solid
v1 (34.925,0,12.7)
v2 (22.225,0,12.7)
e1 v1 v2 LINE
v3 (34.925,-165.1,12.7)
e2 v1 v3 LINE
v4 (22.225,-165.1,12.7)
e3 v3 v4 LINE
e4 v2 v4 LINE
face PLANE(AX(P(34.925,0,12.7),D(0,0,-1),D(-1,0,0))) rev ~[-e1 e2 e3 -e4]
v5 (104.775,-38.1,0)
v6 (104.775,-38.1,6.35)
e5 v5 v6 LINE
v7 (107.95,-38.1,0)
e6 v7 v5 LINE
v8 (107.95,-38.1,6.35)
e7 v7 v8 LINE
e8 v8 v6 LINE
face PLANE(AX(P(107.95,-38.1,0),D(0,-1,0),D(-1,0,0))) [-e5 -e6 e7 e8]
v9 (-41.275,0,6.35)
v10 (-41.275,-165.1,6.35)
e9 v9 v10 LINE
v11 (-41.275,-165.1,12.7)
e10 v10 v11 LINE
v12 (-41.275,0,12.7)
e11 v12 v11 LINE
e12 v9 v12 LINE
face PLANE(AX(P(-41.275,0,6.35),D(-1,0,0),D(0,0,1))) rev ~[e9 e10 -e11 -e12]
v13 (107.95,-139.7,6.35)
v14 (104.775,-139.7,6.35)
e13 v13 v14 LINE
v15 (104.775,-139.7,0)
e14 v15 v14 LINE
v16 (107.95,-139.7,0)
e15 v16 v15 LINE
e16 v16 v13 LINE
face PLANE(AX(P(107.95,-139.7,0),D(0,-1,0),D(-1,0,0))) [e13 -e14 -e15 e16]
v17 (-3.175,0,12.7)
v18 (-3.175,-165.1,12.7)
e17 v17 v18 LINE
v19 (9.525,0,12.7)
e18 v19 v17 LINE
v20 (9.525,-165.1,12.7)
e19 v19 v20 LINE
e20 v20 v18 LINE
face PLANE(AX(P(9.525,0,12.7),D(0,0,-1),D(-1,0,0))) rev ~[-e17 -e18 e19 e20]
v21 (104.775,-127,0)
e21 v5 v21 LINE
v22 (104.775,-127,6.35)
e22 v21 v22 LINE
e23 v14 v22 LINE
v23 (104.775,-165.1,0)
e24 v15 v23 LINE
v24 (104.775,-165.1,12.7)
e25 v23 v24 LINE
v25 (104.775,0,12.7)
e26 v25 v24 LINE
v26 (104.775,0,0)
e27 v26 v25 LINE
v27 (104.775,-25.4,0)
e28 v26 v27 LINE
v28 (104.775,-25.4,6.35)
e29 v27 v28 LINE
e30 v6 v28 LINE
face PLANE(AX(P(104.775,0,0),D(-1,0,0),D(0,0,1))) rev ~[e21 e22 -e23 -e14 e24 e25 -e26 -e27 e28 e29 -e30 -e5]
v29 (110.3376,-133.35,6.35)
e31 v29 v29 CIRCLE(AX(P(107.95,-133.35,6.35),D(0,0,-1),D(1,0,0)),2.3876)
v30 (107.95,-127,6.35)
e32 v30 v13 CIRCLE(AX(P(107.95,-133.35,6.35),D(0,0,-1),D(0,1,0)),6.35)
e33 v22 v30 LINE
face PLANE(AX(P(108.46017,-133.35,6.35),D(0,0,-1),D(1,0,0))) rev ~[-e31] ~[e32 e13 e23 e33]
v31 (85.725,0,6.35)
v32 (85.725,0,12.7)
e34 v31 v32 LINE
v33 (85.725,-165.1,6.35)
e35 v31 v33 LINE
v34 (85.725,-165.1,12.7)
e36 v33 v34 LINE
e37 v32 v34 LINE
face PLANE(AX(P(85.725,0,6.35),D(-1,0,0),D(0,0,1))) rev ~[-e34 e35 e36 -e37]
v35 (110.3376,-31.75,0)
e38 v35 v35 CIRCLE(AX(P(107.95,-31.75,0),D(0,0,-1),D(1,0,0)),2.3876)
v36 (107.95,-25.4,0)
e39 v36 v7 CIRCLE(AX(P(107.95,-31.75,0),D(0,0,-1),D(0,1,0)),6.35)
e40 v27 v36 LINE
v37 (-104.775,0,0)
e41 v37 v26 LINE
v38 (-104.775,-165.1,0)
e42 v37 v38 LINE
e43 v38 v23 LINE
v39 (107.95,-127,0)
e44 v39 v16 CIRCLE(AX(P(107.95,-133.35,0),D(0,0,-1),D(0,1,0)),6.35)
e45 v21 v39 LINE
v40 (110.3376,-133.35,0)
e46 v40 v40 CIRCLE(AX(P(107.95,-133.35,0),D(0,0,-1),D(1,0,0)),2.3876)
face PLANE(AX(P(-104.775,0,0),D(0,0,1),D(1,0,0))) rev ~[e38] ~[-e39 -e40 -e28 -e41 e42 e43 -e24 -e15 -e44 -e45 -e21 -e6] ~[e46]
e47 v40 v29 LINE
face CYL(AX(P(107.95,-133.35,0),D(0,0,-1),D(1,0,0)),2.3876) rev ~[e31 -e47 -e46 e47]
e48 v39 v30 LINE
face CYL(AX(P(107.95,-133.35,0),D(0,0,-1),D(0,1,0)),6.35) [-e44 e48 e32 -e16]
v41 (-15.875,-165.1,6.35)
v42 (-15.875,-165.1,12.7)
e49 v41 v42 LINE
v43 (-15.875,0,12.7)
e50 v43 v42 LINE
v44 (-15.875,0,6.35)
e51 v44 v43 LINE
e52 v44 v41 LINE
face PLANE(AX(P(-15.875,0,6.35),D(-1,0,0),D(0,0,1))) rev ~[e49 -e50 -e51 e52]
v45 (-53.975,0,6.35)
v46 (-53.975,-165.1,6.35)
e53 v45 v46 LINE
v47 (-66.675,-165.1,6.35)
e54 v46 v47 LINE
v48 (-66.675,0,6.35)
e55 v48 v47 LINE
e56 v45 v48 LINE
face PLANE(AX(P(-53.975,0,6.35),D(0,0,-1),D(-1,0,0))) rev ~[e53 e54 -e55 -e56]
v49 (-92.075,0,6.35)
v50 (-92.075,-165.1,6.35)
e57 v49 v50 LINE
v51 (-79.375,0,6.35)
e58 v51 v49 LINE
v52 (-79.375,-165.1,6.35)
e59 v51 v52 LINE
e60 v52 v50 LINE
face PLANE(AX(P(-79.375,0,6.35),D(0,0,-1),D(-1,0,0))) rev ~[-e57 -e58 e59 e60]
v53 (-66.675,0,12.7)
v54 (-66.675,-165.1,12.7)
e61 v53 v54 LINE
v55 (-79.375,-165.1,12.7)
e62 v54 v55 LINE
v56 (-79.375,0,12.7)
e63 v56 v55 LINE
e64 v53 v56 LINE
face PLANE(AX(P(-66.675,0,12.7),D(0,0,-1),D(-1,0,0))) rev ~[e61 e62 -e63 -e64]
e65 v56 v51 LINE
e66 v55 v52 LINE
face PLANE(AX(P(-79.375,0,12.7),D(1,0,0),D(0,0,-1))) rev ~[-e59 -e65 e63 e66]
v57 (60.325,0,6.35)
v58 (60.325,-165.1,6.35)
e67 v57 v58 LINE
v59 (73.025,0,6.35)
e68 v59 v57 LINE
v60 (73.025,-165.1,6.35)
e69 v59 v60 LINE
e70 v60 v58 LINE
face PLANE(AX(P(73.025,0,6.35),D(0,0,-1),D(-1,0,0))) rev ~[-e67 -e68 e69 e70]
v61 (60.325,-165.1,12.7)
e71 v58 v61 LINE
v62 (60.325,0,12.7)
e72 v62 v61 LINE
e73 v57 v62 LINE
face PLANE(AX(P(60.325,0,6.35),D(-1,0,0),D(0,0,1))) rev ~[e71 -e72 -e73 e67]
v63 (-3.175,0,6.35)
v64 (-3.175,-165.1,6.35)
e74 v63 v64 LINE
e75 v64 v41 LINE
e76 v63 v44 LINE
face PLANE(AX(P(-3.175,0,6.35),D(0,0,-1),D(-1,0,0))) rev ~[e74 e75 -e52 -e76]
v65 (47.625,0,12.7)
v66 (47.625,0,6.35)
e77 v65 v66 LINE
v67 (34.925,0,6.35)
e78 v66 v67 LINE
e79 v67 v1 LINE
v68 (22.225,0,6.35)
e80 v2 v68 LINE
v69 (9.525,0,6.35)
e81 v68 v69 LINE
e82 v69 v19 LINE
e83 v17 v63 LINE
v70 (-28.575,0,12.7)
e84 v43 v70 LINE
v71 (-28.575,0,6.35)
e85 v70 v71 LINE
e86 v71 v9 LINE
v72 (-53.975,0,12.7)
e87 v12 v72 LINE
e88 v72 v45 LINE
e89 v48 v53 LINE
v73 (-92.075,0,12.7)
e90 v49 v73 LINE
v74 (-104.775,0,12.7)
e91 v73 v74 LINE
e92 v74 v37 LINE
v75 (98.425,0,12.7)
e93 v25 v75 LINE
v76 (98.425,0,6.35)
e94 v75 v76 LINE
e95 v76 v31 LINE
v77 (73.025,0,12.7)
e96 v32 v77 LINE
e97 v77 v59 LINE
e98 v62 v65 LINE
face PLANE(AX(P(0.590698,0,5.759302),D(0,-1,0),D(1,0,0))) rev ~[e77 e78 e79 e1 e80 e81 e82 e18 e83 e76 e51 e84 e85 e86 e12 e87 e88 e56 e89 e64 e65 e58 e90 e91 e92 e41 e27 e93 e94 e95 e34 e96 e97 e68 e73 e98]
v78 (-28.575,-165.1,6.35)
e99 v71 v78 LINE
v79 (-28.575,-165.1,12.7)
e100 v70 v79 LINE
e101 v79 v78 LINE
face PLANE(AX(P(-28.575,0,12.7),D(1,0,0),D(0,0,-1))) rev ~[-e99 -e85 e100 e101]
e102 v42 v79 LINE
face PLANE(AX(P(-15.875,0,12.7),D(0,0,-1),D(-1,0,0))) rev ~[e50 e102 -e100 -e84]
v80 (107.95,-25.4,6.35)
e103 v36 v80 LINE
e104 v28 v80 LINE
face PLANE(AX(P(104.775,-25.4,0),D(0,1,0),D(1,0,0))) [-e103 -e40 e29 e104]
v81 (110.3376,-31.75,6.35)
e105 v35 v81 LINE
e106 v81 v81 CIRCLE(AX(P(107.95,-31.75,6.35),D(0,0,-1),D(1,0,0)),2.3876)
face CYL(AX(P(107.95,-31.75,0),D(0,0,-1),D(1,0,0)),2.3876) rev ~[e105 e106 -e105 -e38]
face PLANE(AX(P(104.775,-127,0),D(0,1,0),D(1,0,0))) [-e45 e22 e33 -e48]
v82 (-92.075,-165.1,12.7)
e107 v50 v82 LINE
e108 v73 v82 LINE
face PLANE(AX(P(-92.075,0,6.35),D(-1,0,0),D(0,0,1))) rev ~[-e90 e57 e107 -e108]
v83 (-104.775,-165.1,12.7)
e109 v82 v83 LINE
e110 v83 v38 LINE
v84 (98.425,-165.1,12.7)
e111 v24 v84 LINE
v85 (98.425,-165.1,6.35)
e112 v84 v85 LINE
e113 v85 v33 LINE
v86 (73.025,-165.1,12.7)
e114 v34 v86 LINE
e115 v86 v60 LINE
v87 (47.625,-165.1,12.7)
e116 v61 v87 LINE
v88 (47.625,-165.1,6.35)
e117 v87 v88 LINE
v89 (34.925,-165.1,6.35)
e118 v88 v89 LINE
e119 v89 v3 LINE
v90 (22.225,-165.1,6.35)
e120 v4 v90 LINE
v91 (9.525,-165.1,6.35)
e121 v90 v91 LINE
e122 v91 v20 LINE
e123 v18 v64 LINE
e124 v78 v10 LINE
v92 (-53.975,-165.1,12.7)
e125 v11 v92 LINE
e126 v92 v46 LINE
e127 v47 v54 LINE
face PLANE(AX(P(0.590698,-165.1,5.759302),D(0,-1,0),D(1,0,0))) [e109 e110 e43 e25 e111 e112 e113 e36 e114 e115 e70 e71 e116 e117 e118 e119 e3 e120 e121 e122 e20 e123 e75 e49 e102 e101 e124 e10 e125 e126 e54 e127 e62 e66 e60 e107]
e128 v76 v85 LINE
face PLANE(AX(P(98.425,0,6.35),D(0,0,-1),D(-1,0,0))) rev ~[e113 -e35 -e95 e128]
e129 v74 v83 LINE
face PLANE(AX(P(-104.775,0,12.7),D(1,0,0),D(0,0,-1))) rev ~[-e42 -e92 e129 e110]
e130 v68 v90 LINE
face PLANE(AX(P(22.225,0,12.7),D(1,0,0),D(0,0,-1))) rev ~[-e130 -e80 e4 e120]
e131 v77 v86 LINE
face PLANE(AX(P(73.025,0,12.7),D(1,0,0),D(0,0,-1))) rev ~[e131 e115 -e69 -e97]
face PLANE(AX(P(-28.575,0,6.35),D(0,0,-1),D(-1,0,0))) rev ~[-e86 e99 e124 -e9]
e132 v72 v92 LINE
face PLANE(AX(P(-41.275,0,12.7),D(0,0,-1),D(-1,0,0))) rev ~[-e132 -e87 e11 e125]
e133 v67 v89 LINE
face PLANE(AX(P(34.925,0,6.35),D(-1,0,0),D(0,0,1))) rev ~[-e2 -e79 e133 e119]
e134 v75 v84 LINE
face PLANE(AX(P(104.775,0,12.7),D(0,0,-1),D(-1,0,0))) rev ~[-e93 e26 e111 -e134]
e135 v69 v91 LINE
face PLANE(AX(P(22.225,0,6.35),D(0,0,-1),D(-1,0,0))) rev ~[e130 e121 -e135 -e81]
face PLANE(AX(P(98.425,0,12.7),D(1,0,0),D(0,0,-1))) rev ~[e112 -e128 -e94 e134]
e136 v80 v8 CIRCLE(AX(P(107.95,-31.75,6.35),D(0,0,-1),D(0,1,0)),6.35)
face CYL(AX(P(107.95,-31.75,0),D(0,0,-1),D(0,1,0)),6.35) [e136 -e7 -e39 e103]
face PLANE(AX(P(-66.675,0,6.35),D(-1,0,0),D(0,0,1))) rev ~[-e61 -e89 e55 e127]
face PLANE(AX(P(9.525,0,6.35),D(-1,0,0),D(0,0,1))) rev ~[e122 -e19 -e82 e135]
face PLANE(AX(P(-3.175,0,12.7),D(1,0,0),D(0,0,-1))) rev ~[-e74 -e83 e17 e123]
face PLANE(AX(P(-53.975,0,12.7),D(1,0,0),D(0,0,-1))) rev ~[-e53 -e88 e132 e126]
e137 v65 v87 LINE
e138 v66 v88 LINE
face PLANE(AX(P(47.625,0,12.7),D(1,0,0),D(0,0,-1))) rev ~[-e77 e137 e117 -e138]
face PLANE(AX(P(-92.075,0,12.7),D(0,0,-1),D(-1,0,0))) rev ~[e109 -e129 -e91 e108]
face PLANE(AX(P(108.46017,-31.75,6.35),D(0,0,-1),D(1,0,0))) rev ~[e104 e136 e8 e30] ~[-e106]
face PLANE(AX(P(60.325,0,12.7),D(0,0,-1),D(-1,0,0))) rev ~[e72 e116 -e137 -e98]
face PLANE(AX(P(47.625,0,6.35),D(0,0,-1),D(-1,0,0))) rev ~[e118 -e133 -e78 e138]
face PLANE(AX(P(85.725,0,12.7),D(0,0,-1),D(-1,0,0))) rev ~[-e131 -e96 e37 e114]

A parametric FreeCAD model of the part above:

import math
import FreeCAD as App
import Part
import Sketcher

V = App.Vector
Q = App.Units.Quantity


def add_polygon(sketch, points):
    """Adds a closed chain of lines whose ends are joined by coincident constraints."""
    first, n = sketch.GeometryCount, len(points)
    for a, b in zip(points, points[1:] + points[:1]):
        sketch.addGeometry(Part.LineSegment(App.Vector(*a, 0), App.Vector(*b, 0)), False)
    for i in range(n):
        sketch.addConstraint(Sketcher.Constraint("Coincident", first + i, 2, first + (i + 1) % n, 1))

doc = App.newDocument("Part")
body = doc.addObject("PartDesign::Body", "Body")

sketch1 = body.newObject("Sketcher::SketchObject", "Sketch")
sketch1.AttachmentSupport = (doc.getObject("XZ_Plane"), [""])
sketch1.MapMode = "FlatFace"
add_polygon(sketch1, [(-105, 13), (-105, 0), (105, 0), (105, 13), (98, 13), (98, 6), (86, 6), (86, 13), (73, 13), (73, 6), (60, 6), (60, 13), (48, 13), (48, 6), (35, 6), (35, 13), (22, 13), (22, 6), (10, 6), (10, 13), (-3, 13), (-3, 6), (-16, 6), (-16, 13), (-29, 13), (-29, 6), (-41, 6), (-41, 13), (-54, 13), (-54, 6), (-67, 6), (-67, 13), (-79, 13), (-79, 6), (-92, 6), (-92, 13)])
sketch1.addConstraint([
    Sketcher.Constraint("Vertical", 0),
    Sketcher.Constraint("Horizontal", 1),
    Sketcher.Constraint("Vertical", 2),
    Sketcher.Constraint("Horizontal", 3),
    Sketcher.Constraint("Vertical", 4),
    Sketcher.Constraint("Horizontal", 5),
    Sketcher.Constraint("Vertical", 6),
    Sketcher.Constraint("Horizontal", 7),
    Sketcher.Constraint("Vertical", 8),
    Sketcher.Constraint("Horizontal", 9),
    Sketcher.Constraint("Vertical", 10),
    Sketcher.Constraint("Horizontal", 11),
    Sketcher.Constraint("Vertical", 12),
    Sketcher.Constraint("Horizontal", 13),
    Sketcher.Constraint("Vertical", 14),
    Sketcher.Constraint("Horizontal", 15),
    Sketcher.Constraint("Vertical", 16),
    Sketcher.Constraint("Horizontal", 17),
    Sketcher.Constraint("Vertical", 18),
    Sketcher.Constraint("Horizontal", 19),
    Sketcher.Constraint("Vertical", 20),
    Sketcher.Constraint("Horizontal", 21),
    Sketcher.Constraint("Vertical", 22),
    Sketcher.Constraint("Horizontal", 23),
    Sketcher.Constraint("Vertical", 24),
    Sketcher.Constraint("Horizontal", 25),
    Sketcher.Constraint("Vertical", 26),
    Sketcher.Constraint("Horizontal", 27),
    Sketcher.Constraint("Vertical", 28),
    Sketcher.Constraint("Horizontal", 29),
    Sketcher.Constraint("Vertical", 30),
    Sketcher.Constraint("Horizontal", 31),
    Sketcher.Constraint("Vertical", 32),
    Sketcher.Constraint("Horizontal", 33),
    Sketcher.Constraint("Vertical", 34),
    Sketcher.Constraint("Horizontal", 35),
    Sketcher.Constraint("Symmetric", 0, 2, 1, 2, -1, 1),
    Sketcher.Constraint("Horizontal", 3, 2, 6, 2),
    Sketcher.Constraint("Horizontal", 5, 2, 8, 2),
    Sketcher.Constraint("Horizontal", 7, 2, 10, 2),
    Sketcher.Constraint("Horizontal", 9, 2, 12, 2),
    Sketcher.Constraint("Horizontal", 11, 2, 14, 2),
    Sketcher.Constraint("Horizontal", 13, 2, 16, 2),
    Sketcher.Constraint("Horizontal", 15, 2, 18, 2),
    Sketcher.Constraint("Horizontal", 17, 2, 20, 2),
    Sketcher.Constraint("Horizontal", 19, 2, 22, 2),
    Sketcher.Constraint("Horizontal", 21, 2, 24, 2),
    Sketcher.Constraint("Horizontal", 23, 2, 26, 2),
    Sketcher.Constraint("Horizontal", 25, 2, 28, 2),
    Sketcher.Constraint("Horizontal", 27, 2, 30, 2),
    Sketcher.Constraint("Horizontal", 29, 2, 32, 2),
    Sketcher.Constraint("Horizontal", 31, 2, 34, 2),
    Sketcher.Constraint("Equal", 5, 7),
    Sketcher.Constraint("Equal", 7, 9),
    Sketcher.Constraint("Equal", 9, 11),
    Sketcher.Constraint("Equal", 11, 13),
    Sketcher.Constraint("Equal", 13, 15),
    Sketcher.Constraint("Equal", 15, 17),
    Sketcher.Constraint("Equal", 17, 19),
    Sketcher.Constraint("Equal", 19, 21),
    Sketcher.Constraint("Equal", 21, 23),
    Sketcher.Constraint("Equal", 23, 25),
    Sketcher.Constraint("Equal", 25, 27),
    Sketcher.Constraint("Equal", 27, 29),
    Sketcher.Constraint("Equal", 29, 31),
    Sketcher.Constraint("Equal", 31, 33),
    Sketcher.Constraint("Equal", 33, 35),
    Sketcher.Constraint("Equal", 35, 0),
    Sketcher.Constraint("Equal", 3, 4),
    Sketcher.Constraint("DistanceX", 5, 2, 5, 1, Q("0.5 in")),
    Sketcher.Constraint("DistanceX", 1, 1, 1, 2, Q("8.25 in")),
])
pad1 = body.newObject("PartDesign::Pad", "Pad")
pad1.Profile = sketch1
pad1.Length = Q("6.5 in")

sketch2 = body.newObject("Sketcher::SketchObject", "Sketch001")
sketch2.AttachmentSupport = (doc.getObject("XY_Plane"), [""])
sketch2.MapMode = "FlatFace"
sketch2.addGeometry([
    Part.LineSegment(V(108, -139.7, 0), V(104.8, -139.7, 0)),
    Part.LineSegment(V(104.8, -139.7, 0), V(104.8, -127, 0)),
    Part.LineSegment(V(104.8, -127, 0), V(108, -127, 0)),
    Part.ArcOfCircle(Part.Circle(V(108, -133.3, 0), V(0, 0, 1), 6.3), math.radians(-90), math.radians(90)),
    Part.Circle(V(108, -133.3, 0), V(0, 0, 1), 2.4),
    Part.ArcOfCircle(Part.Circle(V(108, -31.8, 0), V(0, 0, 1), 6.3), math.radians(-90), math.radians(90)),
    Part.LineSegment(V(108, -38.1, 0), V(104.8, -38.1, 0)),
    Part.LineSegment(V(104.8, -38.1, 0), V(104.8, -25.4, 0)),
    Part.LineSegment(V(104.8, -25.4, 0), V(108, -25.4, 0)),
    Part.Circle(V(108, -31.8, 0), V(0, 0, 1), 2.4),
], False)
sketch2.addConstraint([
    Sketcher.Constraint("Coincident", 0, 2, 1, 1),
    Sketcher.Constraint("Coincident", 1, 2, 2, 1),
    Sketcher.Constraint("Tangent", 2, 2, 3, 2),
    Sketcher.Constraint("Tangent", 3, 1, 0, 1),
    Sketcher.Constraint("Tangent", 5, 1, 6, 1),
    Sketcher.Constraint("Coincident", 6, 2, 7, 1),
    Sketcher.Constraint("Coincident", 7, 2, 8, 1),
    Sketcher.Constraint("Tangent", 8, 2, 5, 2),
    Sketcher.Constraint("Horizontal", 0),
    Sketcher.Constraint("Vertical", 1),
    Sketcher.Constraint("Horizontal", 2),
    Sketcher.Constraint("Horizontal", 6),
    Sketcher.Constraint("Vertical", 7),
    Sketcher.Constraint("Horizontal", 8),
    Sketcher.Constraint("Coincident", 4, 3, 3, 3),
    Sketcher.Constraint("Coincident", 9, 3, 5, 3),
    Sketcher.Constraint("Equal", 3, 5),
    Sketcher.Constraint("Equal", 4, 9),
    Sketcher.Constraint("Vertical", 4, 3, 5, 3),
    Sketcher.Constraint("Vertical", 1, 2, 6, 2),
    Sketcher.Constraint("Radius", 3, Q("0.25 in")),
    Sketcher.Constraint("Diameter", 4, Q("0.188 in")),
    Sketcher.Constraint("DistanceY", 1, 2, -1, 1, Q("5 in")),
    Sketcher.Constraint("DistanceY", 7, 2, -1, 1, Q("1 in")),
    Sketcher.Constraint("DistanceX", 0, 2, 0, 1, Q("0.125 in")),
    Sketcher.Constraint("DistanceX", -1, 1, 3, 3, Q("4.25 in")),
])
pad2 = body.newObject("PartDesign::Pad", "Pad001")
pad2.Profile = sketch2
pad2.Length = Q("0.25 in")

doc.recompute()
